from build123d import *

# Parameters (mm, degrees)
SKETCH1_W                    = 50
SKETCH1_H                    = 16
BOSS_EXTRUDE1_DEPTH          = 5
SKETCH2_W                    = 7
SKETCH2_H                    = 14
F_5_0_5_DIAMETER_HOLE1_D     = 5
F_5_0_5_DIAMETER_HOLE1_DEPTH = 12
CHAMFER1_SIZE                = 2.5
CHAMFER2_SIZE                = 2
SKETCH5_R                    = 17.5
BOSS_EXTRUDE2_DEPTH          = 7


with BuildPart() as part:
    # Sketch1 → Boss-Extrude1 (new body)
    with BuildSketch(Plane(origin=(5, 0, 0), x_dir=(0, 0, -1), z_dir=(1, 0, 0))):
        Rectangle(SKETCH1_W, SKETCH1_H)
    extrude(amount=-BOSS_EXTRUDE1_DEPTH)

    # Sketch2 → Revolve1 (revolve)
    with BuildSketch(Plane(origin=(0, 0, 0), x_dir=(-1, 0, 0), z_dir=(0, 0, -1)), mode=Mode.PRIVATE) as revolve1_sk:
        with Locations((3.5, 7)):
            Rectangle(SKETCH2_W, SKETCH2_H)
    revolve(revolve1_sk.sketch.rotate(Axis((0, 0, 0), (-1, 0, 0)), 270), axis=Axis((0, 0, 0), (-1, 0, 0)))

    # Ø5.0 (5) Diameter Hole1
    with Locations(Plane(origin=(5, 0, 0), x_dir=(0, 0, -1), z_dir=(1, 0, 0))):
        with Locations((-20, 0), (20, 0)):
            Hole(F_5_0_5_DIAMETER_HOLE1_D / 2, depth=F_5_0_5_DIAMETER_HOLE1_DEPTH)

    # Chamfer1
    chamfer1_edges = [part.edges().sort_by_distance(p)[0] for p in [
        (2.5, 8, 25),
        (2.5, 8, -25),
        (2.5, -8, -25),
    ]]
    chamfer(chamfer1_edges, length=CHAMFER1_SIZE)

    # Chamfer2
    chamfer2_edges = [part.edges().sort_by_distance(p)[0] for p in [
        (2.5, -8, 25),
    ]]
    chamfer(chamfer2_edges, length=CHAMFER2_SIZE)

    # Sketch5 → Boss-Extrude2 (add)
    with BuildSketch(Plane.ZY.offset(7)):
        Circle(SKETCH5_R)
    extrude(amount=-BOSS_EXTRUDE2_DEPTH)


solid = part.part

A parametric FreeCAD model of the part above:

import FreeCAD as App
import Part
import Sketcher
Q = App.Units.Quantity


def edges_at(feature, points):
    """Names of the edges that pass closest to the given points."""
    edges = feature.Shape.Edges
    near = lambda p: min(range(len(edges)), key=lambda i: edges[i].distToShape(Part.Vertex(*p))[0])
    return sorted({f"Edge{near(p) + 1}" for p in points})

doc = App.newDocument("Part")
body = doc.addObject("PartDesign::Body", "Body")

# Sketch on YZ plane
sketch1 = body.newObject("Sketcher::SketchObject", "Sketch")
sketch1.AttachmentSupport = (doc.getObject("YZ_Plane"), [""])
sketch1.MapMode = "FlatFace"
sketch1.AttachmentOffset = App.Placement(App.Vector(0, 0, 5), App.Rotation())
sketch1.addGeometry([
    Part.LineSegment(App.Vector(8, 25, 0), App.Vector(-8, 25, 0)),
    Part.LineSegment(App.Vector(-8, 25, 0), App.Vector(-8, -25, 0)),
    Part.LineSegment(App.Vector(-8, -25, 0), App.Vector(8, -25, 0)),
    Part.LineSegment(App.Vector(8, -25, 0), App.Vector(8, 25, 0)),
], False)
sketch1.addConstraint([
    Sketcher.Constraint("Coincident", 0, 2, 1, 1),
    Sketcher.Constraint("Coincident", 1, 2, 2, 1),
    Sketcher.Constraint("Coincident", 2, 2, 3, 1),
    Sketcher.Constraint("Coincident", 3, 2, 0, 1),
    Sketcher.Constraint("Horizontal", 0),
    Sketcher.Constraint("Vertical", 1),
    Sketcher.Constraint("Horizontal", 2),
    Sketcher.Constraint("Vertical", 3),
    Sketcher.Constraint("Symmetric", 0, 2, 2, 2, -1, 1),
    Sketcher.Constraint("DistanceX", 0, 2, 0, 1, Q("16 mm")),
    Sketcher.Constraint("DistanceY", 1, 2, 1, 1, Q("50 mm")),
])
pad1 = body.newObject("PartDesign::Pad", "Pad")
pad1.Profile = sketch1
pad1.Length = 5
pad1.Reversed = True

# Sketch on XY plane
sketch2 = body.newObject("Sketcher::SketchObject", "Sketch001")
sketch2.AttachmentSupport = (doc.getObject("XY_Plane"), [""])
sketch2.MapMode = "FlatFace"
sketch2.addGeometry([
    Part.LineSegment(App.Vector(0, 14, 0), App.Vector(0, 0, 0)),
    Part.LineSegment(App.Vector(0, 0, 0), App.Vector(-7, 0, 0)),
    Part.LineSegment(App.Vector(-7, 0, 0), App.Vector(-7, 14, 0)),
    Part.LineSegment(App.Vector(-7, 14, 0), App.Vector(0, 14, 0)),
], False)
sketch2.addConstraint([
    Sketcher.Constraint("Coincident", 0, 2, 1, 1),
    Sketcher.Constraint("Coincident", 1, 2, 2, 1),
    Sketcher.Constraint("Coincident", 2, 2, 3, 1),
    Sketcher.Constraint("Coincident", 3, 2, 0, 1),
    Sketcher.Constraint("Vertical", 0),
    Sketcher.Constraint("Horizontal", 1),
    Sketcher.Constraint("Vertical", 2),
    Sketcher.Constraint("Horizontal", 3),
    Sketcher.Constraint("Coincident", 0, 2, -1, 1),
    Sketcher.Constraint("DistanceX", 1, 2, 1, 1, Q("7 mm")),
    Sketcher.Constraint("DistanceY", 0, 2, 0, 1, Q("14 mm")),
])
revolution = body.newObject("PartDesign::Revolution", "Revolution")
revolution.Profile = sketch2
revolution.ReferenceAxis = (sketch2, ["H_Axis"])
revolution.Angle = 360

# Sketch on YZ plane
sketch3 = body.newObject("Sketcher::SketchObject", "Sketch002")
sketch3.AttachmentSupport = (doc.getObject("YZ_Plane"), [""])
sketch3.MapMode = "FlatFace"
sketch3.AttachmentOffset = App.Placement(App.Vector(0, 0, 5), App.Rotation())
sketch3.addGeometry([
    Part.Circle(App.Vector(0, 20, 0), App.Vector(0, 0, 1), 2.5),
    Part.Circle(App.Vector(0, -20, 0), App.Vector(0, 0, 1), 2.5),
], False)
sketch3.addConstraint([
    Sketcher.Constraint("Equal", 0, 1),
    Sketcher.Constraint("Symmetric", 0, 3, 1, 3, -1, 1),
    Sketcher.Constraint("PointOnObject", 0, 3, -2),
    Sketcher.Constraint("Diameter", 0, Q("5 mm")),
    Sketcher.Constraint("DistanceY", -1, 1, 0, 3, Q("20 mm")),
])
doc.recompute()
hole = body.newObject("PartDesign::Hole", "Hole")
hole.Profile = sketch3
hole.ThreadType = "None"
hole.Diameter = 5
hole.DepthType = "Dimension"
hole.Depth = 12
hole.DrillPoint = "Flat"
doc.recompute()

chamfer = body.newObject("PartDesign::Chamfer", "Chamfer")
chamfer.Base = (hole, edges_at(hole, [(2.5, 8, 25), (2.5, 8, -25), (2.5, -8, -25)]))
chamfer.Size = 2.5
doc.recompute()

chamfer2 = body.newObject("PartDesign::Chamfer", "Chamfer001")
chamfer2.Base = (chamfer, edges_at(chamfer, [(2.5, -8, 25)]))
chamfer2.Size = 2

# Sketch on YZ plane
sketch4 = body.newObject("Sketcher::SketchObject", "Sketch003")
sketch4.AttachmentSupport = (doc.getObject("YZ_Plane"), [""])
sketch4.MapMode = "FlatFace"
sketch4.AttachmentOffset = App.Placement(App.Vector(0, 0, -7), App.Rotation())
sketch4.addGeometry(Part.Circle(App.Vector(0, 0, 0), App.Vector(0, 0, 1), 18), False)
sketch4.addConstraint([
    Sketcher.Constraint("Coincident", 0, 3, -1, 1),
    Sketcher.Constraint("Diameter", 0, Q("35 mm")),
])
pad2 = body.newObject("PartDesign::Pad", "Pad001")
pad2.Profile = sketch4
pad2.Length = 7

doc.recompute()
